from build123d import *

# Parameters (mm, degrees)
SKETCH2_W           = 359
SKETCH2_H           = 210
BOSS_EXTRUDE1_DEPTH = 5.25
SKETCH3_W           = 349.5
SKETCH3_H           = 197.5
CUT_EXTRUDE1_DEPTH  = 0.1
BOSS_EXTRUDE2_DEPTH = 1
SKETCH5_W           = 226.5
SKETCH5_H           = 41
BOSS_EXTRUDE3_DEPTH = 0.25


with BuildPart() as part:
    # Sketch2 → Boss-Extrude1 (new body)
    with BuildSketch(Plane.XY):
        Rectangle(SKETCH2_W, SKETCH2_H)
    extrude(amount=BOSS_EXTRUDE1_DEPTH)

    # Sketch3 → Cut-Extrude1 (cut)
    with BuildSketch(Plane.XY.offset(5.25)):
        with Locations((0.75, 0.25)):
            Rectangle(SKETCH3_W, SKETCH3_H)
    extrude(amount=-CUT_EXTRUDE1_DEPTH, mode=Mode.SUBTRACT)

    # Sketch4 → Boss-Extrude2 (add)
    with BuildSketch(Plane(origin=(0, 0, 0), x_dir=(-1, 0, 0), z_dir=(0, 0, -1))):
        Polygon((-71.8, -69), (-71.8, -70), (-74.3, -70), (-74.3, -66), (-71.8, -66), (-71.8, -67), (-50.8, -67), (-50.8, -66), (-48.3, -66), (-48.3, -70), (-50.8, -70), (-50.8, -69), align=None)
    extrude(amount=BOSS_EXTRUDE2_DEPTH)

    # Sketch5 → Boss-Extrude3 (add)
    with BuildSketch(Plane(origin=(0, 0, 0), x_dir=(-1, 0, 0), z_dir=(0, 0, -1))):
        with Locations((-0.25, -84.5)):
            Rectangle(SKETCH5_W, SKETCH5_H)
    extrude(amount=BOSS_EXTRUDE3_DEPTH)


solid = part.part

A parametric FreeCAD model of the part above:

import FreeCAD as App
import Part
import Sketcher

doc = App.newDocument("Part")
body = doc.addObject("PartDesign::Body", "Body")

# Sketch on XY plane
sketch1 = body.newObject("Sketcher::SketchObject", "Sketch")
sketch1.AttachmentSupport = (doc.getObject("XY_Plane"), [""])
sketch1.MapMode = "FlatFace"
sketch1.addGeometry(Part.LineSegment(App.Vector(-180, 105, 0), App.Vector(-180, -105, 0)), False)
sketch1.addGeometry(Part.LineSegment(App.Vector(-180, -105, 0), App.Vector(180, -105, 0)), False)
sketch1.addGeometry(Part.LineSegment(App.Vector(180, -105, 0), App.Vector(180, 105, 0)), False)
sketch1.addGeometry(Part.LineSegment(App.Vector(180, 105, 0), App.Vector(-180, 105, 0)), False)
sketch1.addConstraint(Sketcher.Constraint("Coincident", 0, 2, 1, 1))
sketch1.addConstraint(Sketcher.Constraint("Coincident", 1, 2, 2, 1))
sketch1.addConstraint(Sketcher.Constraint("Coincident", 2, 2, 3, 1))
sketch1.addConstraint(Sketcher.Constraint("Coincident", 3, 2, 0, 1))
sketch1.addConstraint(Sketcher.Constraint("Vertical", 0))
sketch1.addConstraint(Sketcher.Constraint("Horizontal", 1))
sketch1.addConstraint(Sketcher.Constraint("Vertical", 2))
sketch1.addConstraint(Sketcher.Constraint("Horizontal", 3))
sketch1.addConstraint(Sketcher.Constraint("Symmetric", 0, 2, 2, 2, -1, 1))
sketch1.addConstraint(Sketcher.Constraint("DistanceX", 1, 1, 1, 2, 359.0))
sketch1.addConstraint(Sketcher.Constraint("DistanceY", 0, 2, 0, 1, 210.0))
pad1 = body.newObject("PartDesign::Pad", "Pad")
pad1.Profile = sketch1
pad1.Length = 5.25

# Sketch on XY plane
sketch2 = body.newObject("Sketcher::SketchObject", "Sketch001")
sketch2.AttachmentSupport = (doc.getObject("XY_Plane"), [""])
sketch2.MapMode = "FlatFace"
sketch2.AttachmentOffset = App.Placement(App.Vector(0, 0, 5.25), App.Rotation())
sketch2.addGeometry(Part.LineSegment(App.Vector(-174, 99, 0), App.Vector(-174, -98, 0)), False)
sketch2.addGeometry(Part.LineSegment(App.Vector(-174, -98, 0), App.Vector(176, -98, 0)), False)
sketch2.addGeometry(Part.LineSegment(App.Vector(176, -98, 0), App.Vector(176, 99, 0)), False)
sketch2.addGeometry(Part.LineSegment(App.Vector(176, 99, 0), App.Vector(-174, 99, 0)), False)
sketch2.addConstraint(Sketcher.Constraint("Coincident", 0, 2, 1, 1))
sketch2.addConstraint(Sketcher.Constraint("Coincident", 1, 2, 2, 1))
sketch2.addConstraint(Sketcher.Constraint("Coincident", 2, 2, 3, 1))
sketch2.addConstraint(Sketcher.Constraint("Coincident", 3, 2, 0, 1))
sketch2.addConstraint(Sketcher.Constraint("Vertical", 0))
sketch2.addConstraint(Sketcher.Constraint("Horizontal", 1))
sketch2.addConstraint(Sketcher.Constraint("Vertical", 2))
sketch2.addConstraint(Sketcher.Constraint("Horizontal", 3))
sketch2.addConstraint(Sketcher.Constraint("DistanceX", 1, 1, 1, 2, 349.5))
sketch2.addConstraint(Sketcher.Constraint("DistanceY", 0, 2, 0, 1, 197.5))
sketch2.addConstraint(Sketcher.Constraint("DistanceX", 0, 2, -1, 1, 174.0))
sketch2.addConstraint(Sketcher.Constraint("DistanceY", -1, 1, 2, 2, 99.0))
pocket1 = body.newObject("PartDesign::Pocket", "Pocket")
pocket1.Profile = sketch2
pocket1.Length = 0.1

# Sketch on XY plane
sketch3 = body.newObject("Sketcher::SketchObject", "Sketch002")
sketch3.AttachmentSupport = (doc.getObject("XY_Plane"), [""])
sketch3.MapMode = "FlatFace"
sketch3.addGeometry(Part.LineSegment(App.Vector(71.8, -70, 0), App.Vector(71.8, -69, 0)), False)
sketch3.addGeometry(Part.LineSegment(App.Vector(71.8, -69, 0), App.Vector(50.8, -69, 0)), False)
sketch3.addGeometry(Part.LineSegment(App.Vector(50.8, -69, 0), App.Vector(50.8, -70, 0)), False)
sketch3.addGeometry(Part.LineSegment(App.Vector(50.8, -70, 0), App.Vector(48.3, -70, 0)), False)
sketch3.addGeometry(Part.LineSegment(App.Vector(48.3, -70, 0), App.Vector(48.3, -66, 0)), False)
sketch3.addGeometry(Part.LineSegment(App.Vector(48.3, -66, 0), App.Vector(50.8, -66, 0)), False)
sketch3.addGeometry(Part.LineSegment(App.Vector(50.8, -66, 0), App.Vector(50.8, -67, 0)), False)
sketch3.addGeometry(Part.LineSegment(App.Vector(50.8, -67, 0), App.Vector(71.8, -67, 0)), False)
sketch3.addGeometry(Part.LineSegment(App.Vector(71.8, -67, 0), App.Vector(71.8, -66, 0)), False)
sketch3.addGeometry(Part.LineSegment(App.Vector(71.8, -66, 0), App.Vector(74.3, -66, 0)), False)
sketch3.addGeometry(Part.LineSegment(App.Vector(74.3, -66, 0), App.Vector(74.3, -70, 0)), False)
sketch3.addGeometry(Part.LineSegment(App.Vector(74.3, -70, 0), App.Vector(71.8, -70, 0)), False)
sketch3.addConstraint(Sketcher.Constraint("Coincident", 0, 2, 1, 1))
sketch3.addConstraint(Sketcher.Constraint("Coincident", 1, 2, 2, 1))
sketch3.addConstraint(Sketcher.Constraint("Coincident", 2, 2, 3, 1))
sketch3.addConstraint(Sketcher.Constraint("Coincident", 3, 2, 4, 1))
sketch3.addConstraint(Sketcher.Constraint("Coincident", 4, 2, 5, 1))
sketch3.addConstraint(Sketcher.Constraint("Coincident", 5, 2, 6, 1))
sketch3.addConstraint(Sketcher.Constraint("Coincident", 6, 2, 7, 1))
sketch3.addConstraint(Sketcher.Constraint("Coincident", 7, 2, 8, 1))
sketch3.addConstraint(Sketcher.Constraint("Coincident", 8, 2, 9, 1))
sketch3.addConstraint(Sketcher.Constraint("Coincident", 9, 2, 10, 1))
sketch3.addConstraint(Sketcher.Constraint("Coincident", 10, 2, 11, 1))
sketch3.addConstraint(Sketcher.Constraint("Coincident", 11, 2, 0, 1))
sketch3.addConstraint(Sketcher.Constraint("Vertical", 0))
sketch3.addConstraint(Sketcher.Constraint("Horizontal", 1))
sketch3.addConstraint(Sketcher.Constraint("Vertical", 2))
sketch3.addConstraint(Sketcher.Constraint("Horizontal", 3))
sketch3.addConstraint(Sketcher.Constraint("Vertical", 4))
sketch3.addConstraint(Sketcher.Constraint("Horizontal", 5))
sketch3.addConstraint(Sketcher.Constraint("Vertical", 6))
sketch3.addConstraint(Sketcher.Constraint("Horizontal", 7))
sketch3.addConstraint(Sketcher.Constraint("Vertical", 8))
sketch3.addConstraint(Sketcher.Constraint("Horizontal", 9))
sketch3.addConstraint(Sketcher.Constraint("Vertical", 10))
sketch3.addConstraint(Sketcher.Constraint("Horizontal", 11))
sketch3.addConstraint(Sketcher.Constraint("Horizontal", 5, 2, 8, 2))
sketch3.addConstraint(Sketcher.Constraint("Horizontal", 3, 2, 10, 2))
sketch3.addConstraint(Sketcher.Constraint("Vertical", 2, 2, 5, 2))
sketch3.addConstraint(Sketcher.Constraint("Vertical", 0, 2, 7, 2))
sketch3.addConstraint(Sketcher.Constraint("Equal", 5, 9))
sketch3.addConstraint(Sketcher.Constraint("Equal", 2, 6))
sketch3.addConstraint(Sketcher.Constraint("DistanceX", 1, 2, 1, 1, 21.0))
sketch3.addConstraint(Sketcher.Constraint("DistanceY", 0, 1, 0, 2, 1.0))
sketch3.addConstraint(Sketcher.Constraint("DistanceY", 4, 1, 4, 2, 4.0))
sketch3.addConstraint(Sketcher.Constraint("DistanceX", 3, 2, 3, 1, 2.5))
sketch3.addConstraint(Sketcher.Constraint("DistanceY", 0, 2, -1, 1, 69.0))
sketch3.addConstraint(Sketcher.Constraint("DistanceX", -1, 1, 0, 2, 71.8))
pad2 = body.newObject("PartDesign::Pad", "Pad001")
pad2.Profile = sketch3
pad2.Length = 1
pad2.Reversed = True

# Sketch on XY plane
sketch4 = body.newObject("Sketcher::SketchObject", "Sketch003")
sketch4.AttachmentSupport = (doc.getObject("XY_Plane"), [""])
sketch4.MapMode = "FlatFace"
sketch4.addGeometry(Part.LineSegment(App.Vector(114, -64, 0), App.Vector(114, -105, 0)), False)
sketch4.addGeometry(Part.LineSegment(App.Vector(114, -105, 0), App.Vector(-113, -105, 0)), False)
sketch4.addGeometry(Part.LineSegment(App.Vector(-113, -105, 0), App.Vector(-113, -64, 0)), False)
sketch4.addGeometry(Part.LineSegment(App.Vector(-113, -64, 0), App.Vector(114, -64, 0)), False)
sketch4.addConstraint(Sketcher.Constraint("Coincident", 0, 2, 1, 1))
sketch4.addConstraint(Sketcher.Constraint("Coincident", 1, 2, 2, 1))
sketch4.addConstraint(Sketcher.Constraint("Coincident", 2, 2, 3, 1))
sketch4.addConstraint(Sketcher.Constraint("Coincident", 3, 2, 0, 1))
sketch4.addConstraint(Sketcher.Constraint("Vertical", 0))
sketch4.addConstraint(Sketcher.Constraint("Horizontal", 1))
sketch4.addConstraint(Sketcher.Constraint("Vertical", 2))
sketch4.addConstraint(Sketcher.Constraint("Horizontal", 3))
sketch4.addConstraint(Sketcher.Constraint("DistanceY", 0, 2, 0, 1, 41.0))
sketch4.addConstraint(Sketcher.Constraint("DistanceX", 1, 2, 1, 1, 226.5))
sketch4.addConstraint(Sketcher.Constraint("DistanceY", 0, 2, -1, 1, 105.0))
sketch4.addConstraint(Sketcher.Constraint("DistanceX", 1, 2, -1, 1, 113.0))
pad3 = body.newObject("PartDesign::Pad", "Pad002")
pad3.Profile = sketch4
pad3.Length = 0.25
pad3.Reversed = True

doc.recompute()
